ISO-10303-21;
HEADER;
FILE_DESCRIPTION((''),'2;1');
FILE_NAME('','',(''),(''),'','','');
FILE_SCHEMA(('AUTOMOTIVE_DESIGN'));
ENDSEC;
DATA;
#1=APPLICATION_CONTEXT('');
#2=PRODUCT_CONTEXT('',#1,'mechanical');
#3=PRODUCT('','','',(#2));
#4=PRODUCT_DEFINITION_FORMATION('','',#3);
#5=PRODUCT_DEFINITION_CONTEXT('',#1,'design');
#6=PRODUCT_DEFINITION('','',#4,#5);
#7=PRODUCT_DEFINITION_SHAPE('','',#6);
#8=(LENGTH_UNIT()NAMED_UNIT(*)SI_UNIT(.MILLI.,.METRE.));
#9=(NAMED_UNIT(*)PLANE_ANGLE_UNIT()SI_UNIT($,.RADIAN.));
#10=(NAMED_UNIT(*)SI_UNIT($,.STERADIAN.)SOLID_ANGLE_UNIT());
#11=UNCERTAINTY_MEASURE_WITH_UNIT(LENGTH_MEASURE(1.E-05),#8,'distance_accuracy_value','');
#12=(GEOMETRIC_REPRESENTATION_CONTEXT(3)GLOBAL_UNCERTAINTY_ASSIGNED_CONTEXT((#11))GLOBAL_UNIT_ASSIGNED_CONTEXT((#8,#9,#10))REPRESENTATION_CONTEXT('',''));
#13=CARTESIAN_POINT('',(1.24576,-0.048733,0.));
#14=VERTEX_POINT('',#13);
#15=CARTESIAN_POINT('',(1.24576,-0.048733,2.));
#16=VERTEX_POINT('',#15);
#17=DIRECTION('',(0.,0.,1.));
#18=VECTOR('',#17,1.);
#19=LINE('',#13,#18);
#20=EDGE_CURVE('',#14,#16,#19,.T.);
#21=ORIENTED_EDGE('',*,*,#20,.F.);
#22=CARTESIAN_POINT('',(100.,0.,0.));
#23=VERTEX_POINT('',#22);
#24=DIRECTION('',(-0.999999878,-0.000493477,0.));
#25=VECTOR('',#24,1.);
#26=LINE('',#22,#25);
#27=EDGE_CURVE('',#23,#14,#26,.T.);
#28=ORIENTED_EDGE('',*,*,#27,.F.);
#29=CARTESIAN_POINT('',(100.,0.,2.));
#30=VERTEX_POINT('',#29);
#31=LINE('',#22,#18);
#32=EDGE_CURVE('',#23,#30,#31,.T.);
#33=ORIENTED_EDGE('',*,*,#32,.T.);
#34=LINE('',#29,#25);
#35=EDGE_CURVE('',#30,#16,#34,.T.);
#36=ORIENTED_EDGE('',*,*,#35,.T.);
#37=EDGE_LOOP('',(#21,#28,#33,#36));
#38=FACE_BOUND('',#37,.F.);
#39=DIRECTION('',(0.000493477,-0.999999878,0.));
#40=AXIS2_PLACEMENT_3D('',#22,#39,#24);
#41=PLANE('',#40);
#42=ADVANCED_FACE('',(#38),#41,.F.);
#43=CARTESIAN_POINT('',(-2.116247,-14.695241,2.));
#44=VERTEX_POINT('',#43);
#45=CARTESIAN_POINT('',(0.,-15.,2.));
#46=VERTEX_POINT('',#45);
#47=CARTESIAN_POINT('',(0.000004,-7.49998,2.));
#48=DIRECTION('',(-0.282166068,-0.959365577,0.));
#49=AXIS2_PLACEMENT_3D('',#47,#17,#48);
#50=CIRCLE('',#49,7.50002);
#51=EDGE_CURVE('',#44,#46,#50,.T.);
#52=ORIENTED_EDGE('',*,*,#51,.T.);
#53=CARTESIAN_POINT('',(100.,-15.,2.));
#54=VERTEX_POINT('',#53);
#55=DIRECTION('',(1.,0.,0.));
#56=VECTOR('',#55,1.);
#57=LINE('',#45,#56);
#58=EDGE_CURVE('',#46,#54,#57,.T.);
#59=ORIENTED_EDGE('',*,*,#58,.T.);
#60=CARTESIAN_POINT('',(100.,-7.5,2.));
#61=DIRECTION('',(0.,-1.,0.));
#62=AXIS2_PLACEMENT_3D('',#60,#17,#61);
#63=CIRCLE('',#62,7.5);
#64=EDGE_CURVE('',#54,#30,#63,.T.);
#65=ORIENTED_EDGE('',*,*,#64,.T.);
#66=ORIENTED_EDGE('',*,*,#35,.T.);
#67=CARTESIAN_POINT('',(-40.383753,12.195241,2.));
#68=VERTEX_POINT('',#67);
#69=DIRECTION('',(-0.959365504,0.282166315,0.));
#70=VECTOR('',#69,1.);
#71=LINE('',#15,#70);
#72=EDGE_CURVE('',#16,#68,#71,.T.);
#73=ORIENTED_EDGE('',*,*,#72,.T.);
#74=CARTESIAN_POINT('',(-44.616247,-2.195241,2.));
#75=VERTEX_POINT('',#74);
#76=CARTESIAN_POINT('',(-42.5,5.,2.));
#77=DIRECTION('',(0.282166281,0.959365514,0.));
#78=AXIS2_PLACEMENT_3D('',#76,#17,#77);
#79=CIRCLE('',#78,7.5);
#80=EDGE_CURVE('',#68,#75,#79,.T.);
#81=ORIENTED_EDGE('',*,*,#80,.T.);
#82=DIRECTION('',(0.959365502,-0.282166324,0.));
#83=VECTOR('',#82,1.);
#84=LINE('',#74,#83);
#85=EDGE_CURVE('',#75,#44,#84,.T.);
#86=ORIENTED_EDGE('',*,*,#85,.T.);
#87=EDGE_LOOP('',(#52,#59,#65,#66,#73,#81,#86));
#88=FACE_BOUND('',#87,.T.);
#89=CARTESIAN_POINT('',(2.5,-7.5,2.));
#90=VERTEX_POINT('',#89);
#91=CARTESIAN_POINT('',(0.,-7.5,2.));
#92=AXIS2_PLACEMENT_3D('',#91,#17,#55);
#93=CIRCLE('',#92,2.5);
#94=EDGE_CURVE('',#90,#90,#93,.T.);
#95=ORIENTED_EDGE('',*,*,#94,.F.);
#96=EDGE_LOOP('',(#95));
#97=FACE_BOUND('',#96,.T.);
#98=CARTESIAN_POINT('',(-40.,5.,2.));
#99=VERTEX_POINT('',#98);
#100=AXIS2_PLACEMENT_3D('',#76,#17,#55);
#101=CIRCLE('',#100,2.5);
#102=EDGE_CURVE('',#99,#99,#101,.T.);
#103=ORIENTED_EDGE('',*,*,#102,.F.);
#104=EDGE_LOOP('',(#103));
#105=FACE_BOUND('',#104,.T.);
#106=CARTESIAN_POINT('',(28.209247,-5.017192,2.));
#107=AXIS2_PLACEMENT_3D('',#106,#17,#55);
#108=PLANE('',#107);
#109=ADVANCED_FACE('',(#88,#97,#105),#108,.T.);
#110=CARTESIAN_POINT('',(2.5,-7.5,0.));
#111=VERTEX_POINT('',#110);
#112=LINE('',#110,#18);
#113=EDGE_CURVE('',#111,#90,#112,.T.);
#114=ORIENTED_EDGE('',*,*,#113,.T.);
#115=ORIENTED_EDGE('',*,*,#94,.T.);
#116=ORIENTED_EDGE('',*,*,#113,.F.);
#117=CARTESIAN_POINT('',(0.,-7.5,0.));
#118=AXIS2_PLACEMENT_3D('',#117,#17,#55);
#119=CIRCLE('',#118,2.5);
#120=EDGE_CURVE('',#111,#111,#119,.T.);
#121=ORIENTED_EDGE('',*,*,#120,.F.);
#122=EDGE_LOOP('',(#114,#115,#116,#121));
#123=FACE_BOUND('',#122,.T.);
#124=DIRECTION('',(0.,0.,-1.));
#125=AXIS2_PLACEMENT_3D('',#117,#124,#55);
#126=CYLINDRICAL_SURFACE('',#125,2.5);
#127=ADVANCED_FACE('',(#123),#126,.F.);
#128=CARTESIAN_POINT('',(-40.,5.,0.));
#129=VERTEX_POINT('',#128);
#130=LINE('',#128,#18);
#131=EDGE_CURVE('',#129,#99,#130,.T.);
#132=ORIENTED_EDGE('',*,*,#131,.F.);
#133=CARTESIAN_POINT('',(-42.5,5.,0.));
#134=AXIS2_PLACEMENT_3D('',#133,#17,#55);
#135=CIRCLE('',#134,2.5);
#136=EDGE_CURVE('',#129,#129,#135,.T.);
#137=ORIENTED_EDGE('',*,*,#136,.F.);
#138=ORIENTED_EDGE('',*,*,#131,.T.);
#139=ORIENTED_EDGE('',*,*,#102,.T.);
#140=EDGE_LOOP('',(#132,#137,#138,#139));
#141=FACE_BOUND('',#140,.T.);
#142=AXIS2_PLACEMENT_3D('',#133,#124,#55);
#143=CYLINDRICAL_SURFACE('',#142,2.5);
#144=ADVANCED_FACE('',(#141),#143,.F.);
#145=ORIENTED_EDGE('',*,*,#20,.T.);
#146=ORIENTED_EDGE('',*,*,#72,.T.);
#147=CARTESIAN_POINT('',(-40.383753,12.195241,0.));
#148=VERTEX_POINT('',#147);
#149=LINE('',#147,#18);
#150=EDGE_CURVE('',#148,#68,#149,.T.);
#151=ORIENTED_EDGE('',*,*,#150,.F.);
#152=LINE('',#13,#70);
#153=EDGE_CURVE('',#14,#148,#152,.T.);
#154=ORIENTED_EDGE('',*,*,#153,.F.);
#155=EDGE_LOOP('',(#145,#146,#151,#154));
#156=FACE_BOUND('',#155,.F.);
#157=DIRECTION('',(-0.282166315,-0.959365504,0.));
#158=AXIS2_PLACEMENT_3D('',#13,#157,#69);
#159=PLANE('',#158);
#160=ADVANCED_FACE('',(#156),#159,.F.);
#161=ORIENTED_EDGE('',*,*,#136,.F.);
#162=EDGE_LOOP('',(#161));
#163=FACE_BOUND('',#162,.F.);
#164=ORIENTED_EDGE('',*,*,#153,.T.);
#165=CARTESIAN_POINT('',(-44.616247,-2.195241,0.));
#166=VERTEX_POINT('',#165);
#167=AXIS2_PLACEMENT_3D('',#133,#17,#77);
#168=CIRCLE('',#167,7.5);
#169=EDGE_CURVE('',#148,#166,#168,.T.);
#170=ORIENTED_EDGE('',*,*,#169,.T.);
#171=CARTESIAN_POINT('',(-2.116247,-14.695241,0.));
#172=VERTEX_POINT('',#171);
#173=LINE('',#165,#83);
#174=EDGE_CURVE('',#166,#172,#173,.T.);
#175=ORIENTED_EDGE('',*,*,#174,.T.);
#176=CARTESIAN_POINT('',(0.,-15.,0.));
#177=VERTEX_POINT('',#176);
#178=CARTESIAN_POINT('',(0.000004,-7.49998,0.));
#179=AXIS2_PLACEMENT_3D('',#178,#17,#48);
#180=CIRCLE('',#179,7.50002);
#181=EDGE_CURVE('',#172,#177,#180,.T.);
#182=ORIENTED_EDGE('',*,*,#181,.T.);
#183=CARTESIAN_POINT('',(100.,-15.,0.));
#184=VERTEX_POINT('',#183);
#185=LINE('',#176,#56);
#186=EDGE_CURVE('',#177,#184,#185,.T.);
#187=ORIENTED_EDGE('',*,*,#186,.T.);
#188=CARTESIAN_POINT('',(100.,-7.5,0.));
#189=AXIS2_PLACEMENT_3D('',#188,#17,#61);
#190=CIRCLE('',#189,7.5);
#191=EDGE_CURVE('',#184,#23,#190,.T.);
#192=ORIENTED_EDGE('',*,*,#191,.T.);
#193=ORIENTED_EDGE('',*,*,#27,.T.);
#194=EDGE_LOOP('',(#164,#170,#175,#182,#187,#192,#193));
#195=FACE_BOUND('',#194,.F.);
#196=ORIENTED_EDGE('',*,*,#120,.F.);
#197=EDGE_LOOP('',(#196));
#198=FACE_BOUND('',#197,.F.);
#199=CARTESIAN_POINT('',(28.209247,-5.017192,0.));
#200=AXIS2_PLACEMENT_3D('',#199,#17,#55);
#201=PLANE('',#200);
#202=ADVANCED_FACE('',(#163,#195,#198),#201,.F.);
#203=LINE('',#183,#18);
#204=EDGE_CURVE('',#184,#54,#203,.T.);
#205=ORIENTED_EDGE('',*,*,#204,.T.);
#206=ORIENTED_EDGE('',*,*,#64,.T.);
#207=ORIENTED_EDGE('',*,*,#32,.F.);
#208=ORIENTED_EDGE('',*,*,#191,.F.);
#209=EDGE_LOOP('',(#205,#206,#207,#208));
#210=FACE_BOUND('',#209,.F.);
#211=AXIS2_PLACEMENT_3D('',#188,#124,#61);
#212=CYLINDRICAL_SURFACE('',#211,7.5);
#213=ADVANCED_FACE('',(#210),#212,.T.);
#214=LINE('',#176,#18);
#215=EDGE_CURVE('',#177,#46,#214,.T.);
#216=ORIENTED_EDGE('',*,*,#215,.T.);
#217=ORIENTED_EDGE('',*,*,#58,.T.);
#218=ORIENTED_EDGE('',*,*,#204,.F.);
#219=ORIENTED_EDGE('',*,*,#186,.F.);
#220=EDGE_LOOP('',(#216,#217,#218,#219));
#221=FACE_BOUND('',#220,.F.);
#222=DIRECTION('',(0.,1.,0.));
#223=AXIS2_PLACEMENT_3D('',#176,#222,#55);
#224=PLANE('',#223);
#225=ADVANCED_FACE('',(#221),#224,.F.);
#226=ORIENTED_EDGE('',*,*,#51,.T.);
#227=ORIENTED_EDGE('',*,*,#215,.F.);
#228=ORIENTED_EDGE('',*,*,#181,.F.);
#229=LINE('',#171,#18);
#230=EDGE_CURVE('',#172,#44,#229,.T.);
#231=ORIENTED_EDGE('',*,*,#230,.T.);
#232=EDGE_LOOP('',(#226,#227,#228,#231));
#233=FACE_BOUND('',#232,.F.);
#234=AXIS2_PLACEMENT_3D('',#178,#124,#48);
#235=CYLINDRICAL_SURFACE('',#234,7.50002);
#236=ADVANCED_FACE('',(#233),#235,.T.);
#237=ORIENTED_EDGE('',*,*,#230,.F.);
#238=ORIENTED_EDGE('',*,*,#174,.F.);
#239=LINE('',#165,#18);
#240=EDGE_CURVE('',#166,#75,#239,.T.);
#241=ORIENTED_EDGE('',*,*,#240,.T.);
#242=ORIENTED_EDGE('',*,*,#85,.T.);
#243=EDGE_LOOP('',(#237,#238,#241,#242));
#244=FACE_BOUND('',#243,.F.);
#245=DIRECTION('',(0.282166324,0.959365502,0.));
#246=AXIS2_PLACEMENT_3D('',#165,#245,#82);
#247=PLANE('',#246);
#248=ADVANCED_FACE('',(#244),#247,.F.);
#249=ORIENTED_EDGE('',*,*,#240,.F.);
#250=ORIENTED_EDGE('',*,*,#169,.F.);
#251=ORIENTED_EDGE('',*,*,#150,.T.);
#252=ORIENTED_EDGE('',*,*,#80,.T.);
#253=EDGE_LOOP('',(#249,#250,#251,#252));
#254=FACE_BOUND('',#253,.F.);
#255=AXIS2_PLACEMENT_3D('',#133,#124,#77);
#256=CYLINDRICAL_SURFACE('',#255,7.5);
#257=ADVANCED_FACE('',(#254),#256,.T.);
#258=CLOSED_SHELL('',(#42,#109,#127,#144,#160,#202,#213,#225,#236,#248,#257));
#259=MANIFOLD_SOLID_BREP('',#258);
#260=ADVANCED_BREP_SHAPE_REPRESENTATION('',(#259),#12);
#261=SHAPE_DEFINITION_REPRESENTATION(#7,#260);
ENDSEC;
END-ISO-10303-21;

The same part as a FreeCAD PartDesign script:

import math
import FreeCAD as App
import Part
import Sketcher

V = App.Vector

doc = App.newDocument("Part")
body = doc.addObject("PartDesign::Body", "Body")

# Sketch on XY plane
sketch1 = body.newObject("Sketcher::SketchObject", "Sketch")
sketch1.AttachmentSupport = (doc.getObject("XY_Plane"), [""])
sketch1.MapMode = "FlatFace"
sketch1.addGeometry([
    Part.ArcOfCircle(Part.Circle(V(0.000004, -7.49998, 0), V(0, 0, 1), 7.50002), math.radians(-106.389525), math.radians(-90.000032)),  # 0
    Part.LineSegment(V(0, -15, 0), V(100, -15, 0)),  # 1
    Part.ArcOfCircle(Part.Circle(V(100, -7.5, 0), V(0, 0, 1), 7.5), math.radians(-90), math.radians(90)),  # 2
    Part.LineSegment(V(100, 0, 0), V(1.24576, -0.048733, 0)),  # 3
    Part.LineSegment(V(1.24576, -0.048733, 0), V(-40.383753, 12.195241, 0)),  # 4
    Part.ArcOfCircle(Part.Circle(V(-42.5, 5, 0), V(0, 0, 1), 7.5), math.radians(73.610462), math.radians(253.610462)),  # 5
    Part.LineSegment(V(-44.616247, -2.195241, 0), V(-2.116247, -14.695241, 0)),  # 6
    Part.Circle(V(0, -7.5, 0), V(0, 0, 1), 2.5),  # 7
    Part.Circle(V(-42.5, 5, 0), V(0, 0, 1), 2.5),  # 8
], False)
sketch1.addConstraint([
    Sketcher.Constraint("Coincident", 0, 2, 1, 1),
    Sketcher.Constraint("Coincident", 1, 2, 2, 1),
    Sketcher.Constraint("Coincident", 2, 2, 3, 1),
    Sketcher.Constraint("Coincident", 3, 2, 4, 1),
    Sketcher.Constraint("Coincident", 4, 2, 5, 1),
    Sketcher.Constraint("Coincident", 5, 2, 6, 1),
    Sketcher.Constraint("Coincident", 6, 2, 0, 1),
    Sketcher.Constraint("Horizontal", 1),
    Sketcher.Constraint("Coincident", 8, 3, 5, 3),
    Sketcher.Constraint("PointOnObject", 7, 3, -2),
    Sketcher.Constraint("PointOnObject", 0, 2, -2),
    Sketcher.Constraint("PointOnObject", 2, 2, -1),
    Sketcher.Constraint("Diameter", 7, 5.0),
    Sketcher.Constraint("Diameter", 8, 5.0),
    Sketcher.Constraint("Radius", 2, 7.5),
    Sketcher.Constraint("Radius", 5, 7.5),
    Sketcher.Constraint("DistanceX", 1, 1, 1, 2, 100.0),
    Sketcher.Constraint("DistanceX", -1, 1, 2, 3, 100.0),
    Sketcher.Constraint("DistanceY", -1, 1, 5, 3, 5.0),
    Sketcher.Constraint("DistanceX", -1, 1, 2, 2, 100.0),
    Sketcher.Constraint("DistanceX", 5, 3, -1, 1, 42.5),
    Sketcher.Constraint("DistanceY", 7, 3, -1, 1, 7.5),
    Sketcher.Constraint("DistanceX", 5, 2, 6, 2, 42.5),
    Sketcher.Constraint("DistanceY", 6, 2, 5, 2, 12.5),
    Sketcher.Constraint("Radius", 0, 7.50002),
    Sketcher.Constraint("DistanceX", -1, 1, 3, 2, 1.24576),
    Sketcher.Constraint("DistanceY", -1, 1, 4, 2, 12.195241),
    Sketcher.Constraint("DistanceY", 5, 2, -1, 1, 2.195241),
    Sketcher.Constraint("Distance", 4, 43.392756),
])
pad1 = body.newObject("PartDesign::Pad", "Pad")
pad1.Profile = sketch1
pad1.Length = 2

doc.recompute()
